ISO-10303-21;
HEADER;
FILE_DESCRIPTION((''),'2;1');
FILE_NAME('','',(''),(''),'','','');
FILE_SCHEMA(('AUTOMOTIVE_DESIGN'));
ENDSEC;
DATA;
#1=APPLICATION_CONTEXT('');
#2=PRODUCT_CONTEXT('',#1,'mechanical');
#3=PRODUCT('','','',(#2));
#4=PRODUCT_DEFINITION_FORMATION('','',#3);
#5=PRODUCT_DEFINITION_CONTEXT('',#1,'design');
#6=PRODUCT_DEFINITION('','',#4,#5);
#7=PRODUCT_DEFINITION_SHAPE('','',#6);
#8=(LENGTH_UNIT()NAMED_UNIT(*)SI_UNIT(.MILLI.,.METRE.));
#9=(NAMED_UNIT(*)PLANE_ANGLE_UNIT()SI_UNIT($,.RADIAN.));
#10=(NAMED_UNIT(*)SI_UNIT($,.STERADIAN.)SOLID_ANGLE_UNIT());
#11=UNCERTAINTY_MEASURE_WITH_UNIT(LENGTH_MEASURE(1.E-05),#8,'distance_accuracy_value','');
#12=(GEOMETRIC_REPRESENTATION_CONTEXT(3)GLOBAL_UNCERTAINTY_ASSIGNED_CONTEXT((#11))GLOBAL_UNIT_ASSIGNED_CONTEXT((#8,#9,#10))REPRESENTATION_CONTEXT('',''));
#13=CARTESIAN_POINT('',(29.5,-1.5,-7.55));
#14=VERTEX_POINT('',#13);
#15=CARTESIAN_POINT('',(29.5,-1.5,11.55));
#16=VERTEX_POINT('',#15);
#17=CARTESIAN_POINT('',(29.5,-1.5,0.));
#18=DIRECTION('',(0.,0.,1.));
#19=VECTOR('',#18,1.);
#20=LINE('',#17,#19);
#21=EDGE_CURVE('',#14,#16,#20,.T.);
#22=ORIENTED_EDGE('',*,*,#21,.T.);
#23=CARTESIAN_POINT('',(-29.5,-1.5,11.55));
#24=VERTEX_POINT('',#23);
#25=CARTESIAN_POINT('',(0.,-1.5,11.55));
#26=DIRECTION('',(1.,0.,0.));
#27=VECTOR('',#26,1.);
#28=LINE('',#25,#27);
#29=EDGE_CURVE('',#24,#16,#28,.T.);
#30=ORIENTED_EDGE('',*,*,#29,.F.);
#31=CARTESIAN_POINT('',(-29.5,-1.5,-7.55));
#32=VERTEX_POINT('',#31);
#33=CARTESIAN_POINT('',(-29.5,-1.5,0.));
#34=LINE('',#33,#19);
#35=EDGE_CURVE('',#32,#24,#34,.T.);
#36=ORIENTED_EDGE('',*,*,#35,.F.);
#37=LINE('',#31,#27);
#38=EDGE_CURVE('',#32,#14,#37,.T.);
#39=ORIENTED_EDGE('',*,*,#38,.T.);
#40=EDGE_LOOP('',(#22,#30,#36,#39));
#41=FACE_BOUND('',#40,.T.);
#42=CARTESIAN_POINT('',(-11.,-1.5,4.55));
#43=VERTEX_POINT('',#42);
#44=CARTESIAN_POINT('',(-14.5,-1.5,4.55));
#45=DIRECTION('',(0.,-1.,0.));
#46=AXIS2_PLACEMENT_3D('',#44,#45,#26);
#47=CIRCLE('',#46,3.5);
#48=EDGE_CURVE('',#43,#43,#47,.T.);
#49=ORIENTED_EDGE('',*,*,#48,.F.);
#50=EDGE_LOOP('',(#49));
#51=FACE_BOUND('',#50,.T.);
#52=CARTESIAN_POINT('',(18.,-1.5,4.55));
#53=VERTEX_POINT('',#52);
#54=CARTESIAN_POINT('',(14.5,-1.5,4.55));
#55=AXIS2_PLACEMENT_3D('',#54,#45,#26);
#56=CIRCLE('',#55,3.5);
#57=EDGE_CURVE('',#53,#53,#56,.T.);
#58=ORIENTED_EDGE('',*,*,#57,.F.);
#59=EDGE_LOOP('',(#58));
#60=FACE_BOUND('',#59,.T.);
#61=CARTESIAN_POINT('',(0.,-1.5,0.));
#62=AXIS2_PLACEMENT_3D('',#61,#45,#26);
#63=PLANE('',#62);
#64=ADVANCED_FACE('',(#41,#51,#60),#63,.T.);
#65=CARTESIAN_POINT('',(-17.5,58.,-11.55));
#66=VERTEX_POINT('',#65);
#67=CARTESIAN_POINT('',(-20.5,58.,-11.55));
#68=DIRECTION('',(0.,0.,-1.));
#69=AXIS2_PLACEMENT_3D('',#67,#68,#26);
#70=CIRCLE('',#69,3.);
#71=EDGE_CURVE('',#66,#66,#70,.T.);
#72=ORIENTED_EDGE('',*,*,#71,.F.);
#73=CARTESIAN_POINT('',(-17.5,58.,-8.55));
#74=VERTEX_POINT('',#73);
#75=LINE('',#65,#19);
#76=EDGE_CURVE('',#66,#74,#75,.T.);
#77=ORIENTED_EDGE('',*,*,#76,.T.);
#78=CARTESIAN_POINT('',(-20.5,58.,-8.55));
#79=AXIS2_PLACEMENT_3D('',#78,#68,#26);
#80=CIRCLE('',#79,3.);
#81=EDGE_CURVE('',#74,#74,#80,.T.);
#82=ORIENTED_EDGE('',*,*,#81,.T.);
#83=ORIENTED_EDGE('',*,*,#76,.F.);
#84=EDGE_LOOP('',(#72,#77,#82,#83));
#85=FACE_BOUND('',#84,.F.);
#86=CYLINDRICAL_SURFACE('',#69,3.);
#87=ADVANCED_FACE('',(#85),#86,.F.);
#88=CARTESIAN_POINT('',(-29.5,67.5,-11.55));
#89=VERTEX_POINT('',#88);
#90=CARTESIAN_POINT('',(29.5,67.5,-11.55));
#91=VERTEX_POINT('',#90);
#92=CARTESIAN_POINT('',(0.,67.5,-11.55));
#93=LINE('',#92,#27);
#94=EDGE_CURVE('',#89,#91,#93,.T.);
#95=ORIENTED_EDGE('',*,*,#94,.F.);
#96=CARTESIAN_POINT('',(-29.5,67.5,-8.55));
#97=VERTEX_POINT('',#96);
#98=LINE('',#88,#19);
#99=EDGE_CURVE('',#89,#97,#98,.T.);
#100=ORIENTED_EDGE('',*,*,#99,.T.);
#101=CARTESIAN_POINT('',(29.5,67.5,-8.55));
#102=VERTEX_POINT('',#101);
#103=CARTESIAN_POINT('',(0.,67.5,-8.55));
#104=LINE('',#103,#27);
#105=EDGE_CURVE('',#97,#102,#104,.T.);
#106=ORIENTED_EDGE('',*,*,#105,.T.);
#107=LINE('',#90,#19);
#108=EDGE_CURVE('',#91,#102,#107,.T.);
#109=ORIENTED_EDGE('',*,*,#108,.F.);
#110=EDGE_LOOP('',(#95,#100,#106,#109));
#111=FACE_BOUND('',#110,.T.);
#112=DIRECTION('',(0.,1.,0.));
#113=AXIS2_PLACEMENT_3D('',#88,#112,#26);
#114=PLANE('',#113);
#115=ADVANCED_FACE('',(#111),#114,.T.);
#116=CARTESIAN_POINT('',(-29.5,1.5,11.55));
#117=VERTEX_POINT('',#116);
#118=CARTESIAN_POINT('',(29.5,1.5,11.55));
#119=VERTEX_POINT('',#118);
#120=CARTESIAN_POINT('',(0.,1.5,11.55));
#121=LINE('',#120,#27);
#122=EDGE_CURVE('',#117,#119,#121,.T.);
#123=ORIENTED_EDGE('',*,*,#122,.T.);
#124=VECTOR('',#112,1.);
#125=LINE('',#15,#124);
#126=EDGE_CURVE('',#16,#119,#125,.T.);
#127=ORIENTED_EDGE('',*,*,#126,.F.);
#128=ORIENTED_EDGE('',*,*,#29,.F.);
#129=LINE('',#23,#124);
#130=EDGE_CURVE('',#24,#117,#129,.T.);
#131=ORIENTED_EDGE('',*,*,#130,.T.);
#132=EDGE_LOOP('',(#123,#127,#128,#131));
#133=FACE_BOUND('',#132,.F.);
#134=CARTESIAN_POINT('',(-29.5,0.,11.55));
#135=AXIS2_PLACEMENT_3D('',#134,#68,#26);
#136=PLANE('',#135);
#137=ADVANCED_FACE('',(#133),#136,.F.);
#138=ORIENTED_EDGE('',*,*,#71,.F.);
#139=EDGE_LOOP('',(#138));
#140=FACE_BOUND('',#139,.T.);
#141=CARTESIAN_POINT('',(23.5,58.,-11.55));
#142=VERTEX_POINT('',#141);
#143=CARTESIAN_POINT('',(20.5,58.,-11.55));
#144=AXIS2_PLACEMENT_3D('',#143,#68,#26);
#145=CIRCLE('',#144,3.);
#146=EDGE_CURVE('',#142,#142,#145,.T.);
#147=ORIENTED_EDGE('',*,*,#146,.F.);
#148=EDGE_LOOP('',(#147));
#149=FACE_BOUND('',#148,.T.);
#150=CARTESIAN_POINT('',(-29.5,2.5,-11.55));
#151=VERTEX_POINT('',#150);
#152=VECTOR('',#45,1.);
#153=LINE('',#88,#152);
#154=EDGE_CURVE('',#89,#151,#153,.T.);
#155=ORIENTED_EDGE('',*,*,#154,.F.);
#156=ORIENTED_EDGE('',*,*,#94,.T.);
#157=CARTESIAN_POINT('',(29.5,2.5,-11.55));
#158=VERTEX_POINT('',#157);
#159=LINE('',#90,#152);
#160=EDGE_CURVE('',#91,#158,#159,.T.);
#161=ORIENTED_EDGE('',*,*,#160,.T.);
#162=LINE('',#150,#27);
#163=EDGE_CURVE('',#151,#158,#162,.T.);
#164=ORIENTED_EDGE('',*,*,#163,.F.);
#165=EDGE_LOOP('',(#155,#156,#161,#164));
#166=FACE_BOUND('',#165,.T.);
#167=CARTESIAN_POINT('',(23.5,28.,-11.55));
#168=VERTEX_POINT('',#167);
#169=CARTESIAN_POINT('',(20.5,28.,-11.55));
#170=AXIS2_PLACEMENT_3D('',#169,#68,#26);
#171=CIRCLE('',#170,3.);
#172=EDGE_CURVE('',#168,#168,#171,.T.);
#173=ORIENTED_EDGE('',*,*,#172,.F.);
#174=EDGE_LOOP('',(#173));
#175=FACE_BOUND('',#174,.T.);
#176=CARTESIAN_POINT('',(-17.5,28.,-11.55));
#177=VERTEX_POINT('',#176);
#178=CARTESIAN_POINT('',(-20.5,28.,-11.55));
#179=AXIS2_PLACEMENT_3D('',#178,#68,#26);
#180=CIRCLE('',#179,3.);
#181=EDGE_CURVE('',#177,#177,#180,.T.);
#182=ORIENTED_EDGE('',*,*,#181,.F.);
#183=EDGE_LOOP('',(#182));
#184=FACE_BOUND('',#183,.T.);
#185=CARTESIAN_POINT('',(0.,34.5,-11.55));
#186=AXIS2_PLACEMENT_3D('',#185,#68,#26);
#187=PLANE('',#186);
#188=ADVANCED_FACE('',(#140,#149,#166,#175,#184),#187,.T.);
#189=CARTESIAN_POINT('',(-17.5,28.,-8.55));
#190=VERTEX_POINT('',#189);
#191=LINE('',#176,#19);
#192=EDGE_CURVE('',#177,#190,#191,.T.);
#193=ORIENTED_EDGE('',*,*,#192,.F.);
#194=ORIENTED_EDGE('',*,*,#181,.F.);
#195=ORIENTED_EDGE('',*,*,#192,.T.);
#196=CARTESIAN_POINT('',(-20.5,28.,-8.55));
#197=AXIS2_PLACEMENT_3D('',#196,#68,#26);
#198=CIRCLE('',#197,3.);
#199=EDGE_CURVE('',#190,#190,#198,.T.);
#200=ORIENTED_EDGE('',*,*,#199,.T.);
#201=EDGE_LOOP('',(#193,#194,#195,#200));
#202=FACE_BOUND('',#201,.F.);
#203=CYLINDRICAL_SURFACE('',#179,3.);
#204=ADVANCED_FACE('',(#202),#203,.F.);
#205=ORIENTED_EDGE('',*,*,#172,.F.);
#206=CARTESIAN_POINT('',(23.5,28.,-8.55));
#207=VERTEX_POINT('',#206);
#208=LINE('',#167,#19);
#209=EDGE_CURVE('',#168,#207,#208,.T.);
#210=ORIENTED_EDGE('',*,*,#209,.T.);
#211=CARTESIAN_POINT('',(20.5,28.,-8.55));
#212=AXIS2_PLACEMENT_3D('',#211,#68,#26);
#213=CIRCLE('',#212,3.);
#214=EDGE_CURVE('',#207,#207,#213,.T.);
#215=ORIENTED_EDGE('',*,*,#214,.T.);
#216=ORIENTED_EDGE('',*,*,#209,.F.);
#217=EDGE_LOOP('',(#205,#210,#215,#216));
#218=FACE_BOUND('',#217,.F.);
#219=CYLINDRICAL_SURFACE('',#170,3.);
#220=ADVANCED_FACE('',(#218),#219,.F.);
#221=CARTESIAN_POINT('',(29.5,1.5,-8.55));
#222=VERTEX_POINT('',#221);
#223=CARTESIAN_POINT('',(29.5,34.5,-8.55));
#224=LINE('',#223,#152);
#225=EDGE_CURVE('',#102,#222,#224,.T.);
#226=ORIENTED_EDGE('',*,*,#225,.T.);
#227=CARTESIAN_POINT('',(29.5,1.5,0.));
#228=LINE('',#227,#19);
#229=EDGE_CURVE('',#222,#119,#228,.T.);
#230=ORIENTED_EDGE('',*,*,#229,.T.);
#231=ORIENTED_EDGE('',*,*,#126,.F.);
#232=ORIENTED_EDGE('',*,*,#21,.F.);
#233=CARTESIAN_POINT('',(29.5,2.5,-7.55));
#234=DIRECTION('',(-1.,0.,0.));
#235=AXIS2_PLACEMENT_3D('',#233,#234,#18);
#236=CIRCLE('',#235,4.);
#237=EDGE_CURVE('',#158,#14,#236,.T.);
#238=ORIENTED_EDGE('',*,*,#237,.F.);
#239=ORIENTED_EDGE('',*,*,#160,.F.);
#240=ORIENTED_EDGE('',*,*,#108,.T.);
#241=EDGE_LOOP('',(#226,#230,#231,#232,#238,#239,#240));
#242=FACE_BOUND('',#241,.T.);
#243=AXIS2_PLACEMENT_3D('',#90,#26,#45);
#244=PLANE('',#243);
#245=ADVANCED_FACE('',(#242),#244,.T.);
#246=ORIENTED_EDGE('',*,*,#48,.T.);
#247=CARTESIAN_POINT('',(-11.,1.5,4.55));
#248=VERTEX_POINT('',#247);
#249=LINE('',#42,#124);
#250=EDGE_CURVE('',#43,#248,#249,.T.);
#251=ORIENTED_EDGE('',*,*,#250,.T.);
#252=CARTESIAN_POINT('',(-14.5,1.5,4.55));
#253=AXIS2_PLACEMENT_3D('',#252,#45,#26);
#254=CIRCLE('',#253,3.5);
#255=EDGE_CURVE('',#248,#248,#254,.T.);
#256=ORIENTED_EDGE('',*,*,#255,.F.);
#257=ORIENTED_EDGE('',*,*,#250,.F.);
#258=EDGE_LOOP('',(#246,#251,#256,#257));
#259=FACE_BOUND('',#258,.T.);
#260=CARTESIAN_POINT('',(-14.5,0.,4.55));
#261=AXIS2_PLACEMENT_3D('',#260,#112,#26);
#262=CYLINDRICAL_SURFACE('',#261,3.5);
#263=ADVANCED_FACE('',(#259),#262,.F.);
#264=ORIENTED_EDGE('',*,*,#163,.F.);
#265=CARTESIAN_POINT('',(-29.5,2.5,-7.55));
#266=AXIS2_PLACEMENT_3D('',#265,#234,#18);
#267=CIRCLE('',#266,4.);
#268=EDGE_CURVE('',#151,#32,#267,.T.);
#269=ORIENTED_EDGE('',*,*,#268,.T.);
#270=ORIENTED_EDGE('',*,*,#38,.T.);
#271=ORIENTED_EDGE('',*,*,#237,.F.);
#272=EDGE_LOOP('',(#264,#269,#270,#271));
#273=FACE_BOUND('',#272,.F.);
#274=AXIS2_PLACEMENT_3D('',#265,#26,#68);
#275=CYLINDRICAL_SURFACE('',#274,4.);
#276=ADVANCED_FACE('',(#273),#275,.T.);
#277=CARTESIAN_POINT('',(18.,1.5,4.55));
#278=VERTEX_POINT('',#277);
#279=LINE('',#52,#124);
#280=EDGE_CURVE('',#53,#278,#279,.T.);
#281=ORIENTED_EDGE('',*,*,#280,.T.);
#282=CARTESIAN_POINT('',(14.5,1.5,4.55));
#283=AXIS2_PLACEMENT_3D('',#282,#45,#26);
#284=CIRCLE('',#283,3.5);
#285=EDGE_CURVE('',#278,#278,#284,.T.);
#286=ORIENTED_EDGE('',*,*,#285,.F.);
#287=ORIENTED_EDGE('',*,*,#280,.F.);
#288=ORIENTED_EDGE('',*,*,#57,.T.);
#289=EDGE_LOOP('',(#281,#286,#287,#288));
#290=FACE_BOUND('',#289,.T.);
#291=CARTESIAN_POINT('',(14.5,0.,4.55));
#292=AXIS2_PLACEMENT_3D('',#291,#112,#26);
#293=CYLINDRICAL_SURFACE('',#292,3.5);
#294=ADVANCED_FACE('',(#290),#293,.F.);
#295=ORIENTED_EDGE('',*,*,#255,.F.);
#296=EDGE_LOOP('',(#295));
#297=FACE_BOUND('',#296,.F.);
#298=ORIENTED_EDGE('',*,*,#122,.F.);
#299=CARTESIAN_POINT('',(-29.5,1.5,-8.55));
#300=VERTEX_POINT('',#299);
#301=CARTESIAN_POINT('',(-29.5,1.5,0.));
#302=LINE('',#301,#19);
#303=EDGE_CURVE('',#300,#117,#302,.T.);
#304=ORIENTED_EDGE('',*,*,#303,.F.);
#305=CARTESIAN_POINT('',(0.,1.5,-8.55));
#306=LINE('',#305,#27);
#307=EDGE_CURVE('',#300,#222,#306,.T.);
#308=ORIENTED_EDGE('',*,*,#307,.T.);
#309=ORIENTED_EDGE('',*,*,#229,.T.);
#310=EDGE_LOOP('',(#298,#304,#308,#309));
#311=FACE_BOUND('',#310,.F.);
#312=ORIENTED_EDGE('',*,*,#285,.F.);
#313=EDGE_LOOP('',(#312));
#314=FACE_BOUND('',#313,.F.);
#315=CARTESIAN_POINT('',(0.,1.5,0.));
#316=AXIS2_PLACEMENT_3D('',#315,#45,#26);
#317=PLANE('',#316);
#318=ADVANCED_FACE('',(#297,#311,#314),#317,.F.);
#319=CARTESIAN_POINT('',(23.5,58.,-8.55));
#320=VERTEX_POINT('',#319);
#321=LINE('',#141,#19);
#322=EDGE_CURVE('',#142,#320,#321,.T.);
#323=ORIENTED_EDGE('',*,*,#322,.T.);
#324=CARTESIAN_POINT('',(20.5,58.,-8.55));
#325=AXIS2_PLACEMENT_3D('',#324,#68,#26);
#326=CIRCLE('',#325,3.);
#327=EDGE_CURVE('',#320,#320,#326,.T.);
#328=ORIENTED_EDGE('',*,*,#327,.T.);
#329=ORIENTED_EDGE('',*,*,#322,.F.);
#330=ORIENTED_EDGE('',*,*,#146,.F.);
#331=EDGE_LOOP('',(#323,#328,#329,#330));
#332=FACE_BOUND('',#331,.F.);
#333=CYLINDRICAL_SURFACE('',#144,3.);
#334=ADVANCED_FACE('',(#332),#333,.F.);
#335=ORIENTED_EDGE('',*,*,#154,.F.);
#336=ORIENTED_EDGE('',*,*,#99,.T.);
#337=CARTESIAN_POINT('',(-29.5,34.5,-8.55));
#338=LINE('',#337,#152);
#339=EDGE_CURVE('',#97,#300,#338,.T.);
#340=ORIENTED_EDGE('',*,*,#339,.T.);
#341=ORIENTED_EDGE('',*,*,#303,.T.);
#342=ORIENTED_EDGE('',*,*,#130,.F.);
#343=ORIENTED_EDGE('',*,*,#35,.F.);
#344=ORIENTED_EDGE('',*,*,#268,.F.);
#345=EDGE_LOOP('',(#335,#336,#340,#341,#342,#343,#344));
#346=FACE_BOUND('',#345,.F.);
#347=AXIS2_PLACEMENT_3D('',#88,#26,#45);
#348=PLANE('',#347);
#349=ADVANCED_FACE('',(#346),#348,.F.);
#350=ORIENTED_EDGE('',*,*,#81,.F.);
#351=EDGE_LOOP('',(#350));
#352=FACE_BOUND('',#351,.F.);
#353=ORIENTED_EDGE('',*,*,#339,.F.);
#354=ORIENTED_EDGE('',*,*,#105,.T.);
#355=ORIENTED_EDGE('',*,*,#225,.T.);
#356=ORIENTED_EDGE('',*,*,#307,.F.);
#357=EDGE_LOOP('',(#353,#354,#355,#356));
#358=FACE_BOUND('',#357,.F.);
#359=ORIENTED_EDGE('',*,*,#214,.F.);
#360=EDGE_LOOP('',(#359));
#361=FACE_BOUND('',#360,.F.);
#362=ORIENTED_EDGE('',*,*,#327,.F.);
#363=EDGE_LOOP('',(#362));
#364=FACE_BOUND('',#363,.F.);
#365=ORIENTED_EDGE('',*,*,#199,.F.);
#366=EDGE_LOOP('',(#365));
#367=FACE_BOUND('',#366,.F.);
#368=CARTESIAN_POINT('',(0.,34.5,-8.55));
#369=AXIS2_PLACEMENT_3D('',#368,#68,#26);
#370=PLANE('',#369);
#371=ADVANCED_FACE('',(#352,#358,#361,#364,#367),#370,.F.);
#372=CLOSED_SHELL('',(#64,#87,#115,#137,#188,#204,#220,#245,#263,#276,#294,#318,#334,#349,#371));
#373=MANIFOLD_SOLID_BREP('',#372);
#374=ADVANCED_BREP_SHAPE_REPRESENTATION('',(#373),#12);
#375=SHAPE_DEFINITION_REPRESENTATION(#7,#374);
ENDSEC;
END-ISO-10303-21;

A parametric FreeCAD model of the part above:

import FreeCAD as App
import Part
import Sketcher

V = App.Vector
Q = App.Units.Quantity


def edges_at(feature, points):
    """Names of the edges that pass closest to the given points."""
    edges = feature.Shape.Edges
    near = lambda p: min(range(len(edges)), key=lambda i: edges[i].distToShape(Part.Vertex(*p))[0])
    return sorted({f"Edge{near(p) + 1}" for p in points})


def add_polygon(sketch, points):
    """Adds a closed chain of lines whose ends are joined by coincident constraints."""
    first, n = sketch.GeometryCount, len(points)
    for a, b in zip(points, points[1:] + points[:1]):
        sketch.addGeometry(Part.LineSegment(App.Vector(*a, 0), App.Vector(*b, 0)), False)
    for i in range(n):
        sketch.addConstraint(Sketcher.Constraint("Coincident", first + i, 2, first + (i + 1) % n, 1))

doc = App.newDocument("Part")
body = doc.addObject("PartDesign::Body", "Body")

sketch1 = body.newObject("Sketcher::SketchObject", "Sketch")
sketch1.AttachmentSupport = (doc.getObject("XZ_Plane"), [""])
sketch1.MapMode = "FlatFace"
add_polygon(sketch1, [(-29.5, 11.6), (-29.5, -11.6), (29.5, -11.6), (29.5, 11.6)])
sketch1.addGeometry(Part.Circle(V(-14.5, 4.5, 0), V(0, 0, 1), 3.5), False)
sketch1.addGeometry(Part.Circle(V(14.5, 4.5, 0), V(0, 0, 1), 3.5), False)
sketch1.addConstraint(Sketcher.Constraint("Vertical", 0))
sketch1.addConstraint(Sketcher.Constraint("Horizontal", 1))
sketch1.addConstraint(Sketcher.Constraint("Vertical", 2))
sketch1.addConstraint(Sketcher.Constraint("Horizontal", 3))
sketch1.addConstraint(Sketcher.Constraint("Equal", 4, 5))
sketch1.addConstraint(Sketcher.Constraint("Symmetric", 0, 2, 2, 2, -1, 1))
sketch1.addConstraint(Sketcher.Constraint("Symmetric", 4, 3, 5, 3, -2))
sketch1.addConstraint(Sketcher.Constraint("Diameter", 4, Q("7 mm")))
sketch1.addConstraint(Sketcher.Constraint("DistanceX", 1, 1, 1, 2, Q("59 mm")))
sketch1.addConstraint(Sketcher.Constraint("DistanceY", 0, 2, 0, 1, Q("23.1 mm")))
sketch1.addConstraint(Sketcher.Constraint("DistanceX", 4, 3, 5, 3, Q("29 mm")))
sketch1.addConstraint(Sketcher.Constraint("DistanceY", 5, 3, 2, 2, Q("7 mm")))
pad1 = body.newObject("PartDesign::Pad", "Pad")
pad1.Profile = sketch1
pad1.Length = 3
pad1.Midplane = True

sketch2 = body.newObject("Sketcher::SketchObject", "Sketch001")
sketch2.AttachmentSupport = (doc.getObject("XY_Plane"), [""])
sketch2.MapMode = "FlatFace"
sketch2.AttachmentOffset = App.Placement(V(0, 0, -11.55), App.Rotation())
add_polygon(sketch2, [(-29.5, 1.5), (-29.5, 67.5), (29.5, 67.5), (29.5, 1.5)])
sketch2.addGeometry(Part.Circle(V(-20.5, 58, 0), V(0, 0, 1), 3), False)
sketch2.addGeometry(Part.Circle(V(20.5, 58, 0), V(0, 0, 1), 3), False)
sketch2.addGeometry(Part.Circle(V(-20.5, 28, 0), V(0, 0, 1), 3), False)
sketch2.addGeometry(Part.Circle(V(20.5, 28, 0), V(0, 0, 1), 3), False)
sketch2.addConstraint(Sketcher.Constraint("Vertical", 0))
sketch2.addConstraint(Sketcher.Constraint("Horizontal", 1))
sketch2.addConstraint(Sketcher.Constraint("Vertical", 2))
sketch2.addConstraint(Sketcher.Constraint("Horizontal", 3))
sketch2.addConstraint(Sketcher.Constraint("Equal", 4, 5))
sketch2.addConstraint(Sketcher.Constraint("Equal", 5, 6))
sketch2.addConstraint(Sketcher.Constraint("Equal", 6, 7))
sketch2.addConstraint(Sketcher.Constraint("Symmetric", 4, 3, 5, 3, -2))
sketch2.addConstraint(Sketcher.Constraint("Symmetric", 6, 3, 7, 3, -2))
sketch2.addConstraint(Sketcher.Constraint("Vertical", 4, 3, 6, 3))
sketch2.addConstraint(Sketcher.Constraint("Diameter", 4, Q("6 mm")))
sketch2.addConstraint(Sketcher.Constraint("DistanceX", 1, 1, 1, 2, Q("59 mm")))
sketch2.addConstraint(Sketcher.Constraint("DistanceY", 0, 1, 0, 2, Q("66 mm")))
sketch2.addConstraint(Sketcher.Constraint("DistanceY", -1, 1, 4, 3, Q("58 mm")))
sketch2.addConstraint(Sketcher.Constraint("DistanceY", -1, 1, 6, 3, Q("28 mm")))
sketch2.addConstraint(Sketcher.Constraint("DistanceX", 4, 3, 5, 3, Q("41 mm")))
sketch2.addConstraint(Sketcher.Constraint("DistanceX", 0, 2, 4, 3, Q("9 mm")))
sketch2.addConstraint(Sketcher.Constraint("DistanceY", -1, 1, 0, 2, Q("67.5 mm")))
pad2 = body.newObject("PartDesign::Pad", "Pad001")
pad2.Profile = sketch2
pad2.Length = 3
doc.recompute()

fillet = body.newObject("PartDesign::Fillet", "Fillet")
fillet.Base = (pad2, edges_at(pad2, [(0, -1.5, -11.55)]))
fillet.Radius = 4

doc.recompute()
